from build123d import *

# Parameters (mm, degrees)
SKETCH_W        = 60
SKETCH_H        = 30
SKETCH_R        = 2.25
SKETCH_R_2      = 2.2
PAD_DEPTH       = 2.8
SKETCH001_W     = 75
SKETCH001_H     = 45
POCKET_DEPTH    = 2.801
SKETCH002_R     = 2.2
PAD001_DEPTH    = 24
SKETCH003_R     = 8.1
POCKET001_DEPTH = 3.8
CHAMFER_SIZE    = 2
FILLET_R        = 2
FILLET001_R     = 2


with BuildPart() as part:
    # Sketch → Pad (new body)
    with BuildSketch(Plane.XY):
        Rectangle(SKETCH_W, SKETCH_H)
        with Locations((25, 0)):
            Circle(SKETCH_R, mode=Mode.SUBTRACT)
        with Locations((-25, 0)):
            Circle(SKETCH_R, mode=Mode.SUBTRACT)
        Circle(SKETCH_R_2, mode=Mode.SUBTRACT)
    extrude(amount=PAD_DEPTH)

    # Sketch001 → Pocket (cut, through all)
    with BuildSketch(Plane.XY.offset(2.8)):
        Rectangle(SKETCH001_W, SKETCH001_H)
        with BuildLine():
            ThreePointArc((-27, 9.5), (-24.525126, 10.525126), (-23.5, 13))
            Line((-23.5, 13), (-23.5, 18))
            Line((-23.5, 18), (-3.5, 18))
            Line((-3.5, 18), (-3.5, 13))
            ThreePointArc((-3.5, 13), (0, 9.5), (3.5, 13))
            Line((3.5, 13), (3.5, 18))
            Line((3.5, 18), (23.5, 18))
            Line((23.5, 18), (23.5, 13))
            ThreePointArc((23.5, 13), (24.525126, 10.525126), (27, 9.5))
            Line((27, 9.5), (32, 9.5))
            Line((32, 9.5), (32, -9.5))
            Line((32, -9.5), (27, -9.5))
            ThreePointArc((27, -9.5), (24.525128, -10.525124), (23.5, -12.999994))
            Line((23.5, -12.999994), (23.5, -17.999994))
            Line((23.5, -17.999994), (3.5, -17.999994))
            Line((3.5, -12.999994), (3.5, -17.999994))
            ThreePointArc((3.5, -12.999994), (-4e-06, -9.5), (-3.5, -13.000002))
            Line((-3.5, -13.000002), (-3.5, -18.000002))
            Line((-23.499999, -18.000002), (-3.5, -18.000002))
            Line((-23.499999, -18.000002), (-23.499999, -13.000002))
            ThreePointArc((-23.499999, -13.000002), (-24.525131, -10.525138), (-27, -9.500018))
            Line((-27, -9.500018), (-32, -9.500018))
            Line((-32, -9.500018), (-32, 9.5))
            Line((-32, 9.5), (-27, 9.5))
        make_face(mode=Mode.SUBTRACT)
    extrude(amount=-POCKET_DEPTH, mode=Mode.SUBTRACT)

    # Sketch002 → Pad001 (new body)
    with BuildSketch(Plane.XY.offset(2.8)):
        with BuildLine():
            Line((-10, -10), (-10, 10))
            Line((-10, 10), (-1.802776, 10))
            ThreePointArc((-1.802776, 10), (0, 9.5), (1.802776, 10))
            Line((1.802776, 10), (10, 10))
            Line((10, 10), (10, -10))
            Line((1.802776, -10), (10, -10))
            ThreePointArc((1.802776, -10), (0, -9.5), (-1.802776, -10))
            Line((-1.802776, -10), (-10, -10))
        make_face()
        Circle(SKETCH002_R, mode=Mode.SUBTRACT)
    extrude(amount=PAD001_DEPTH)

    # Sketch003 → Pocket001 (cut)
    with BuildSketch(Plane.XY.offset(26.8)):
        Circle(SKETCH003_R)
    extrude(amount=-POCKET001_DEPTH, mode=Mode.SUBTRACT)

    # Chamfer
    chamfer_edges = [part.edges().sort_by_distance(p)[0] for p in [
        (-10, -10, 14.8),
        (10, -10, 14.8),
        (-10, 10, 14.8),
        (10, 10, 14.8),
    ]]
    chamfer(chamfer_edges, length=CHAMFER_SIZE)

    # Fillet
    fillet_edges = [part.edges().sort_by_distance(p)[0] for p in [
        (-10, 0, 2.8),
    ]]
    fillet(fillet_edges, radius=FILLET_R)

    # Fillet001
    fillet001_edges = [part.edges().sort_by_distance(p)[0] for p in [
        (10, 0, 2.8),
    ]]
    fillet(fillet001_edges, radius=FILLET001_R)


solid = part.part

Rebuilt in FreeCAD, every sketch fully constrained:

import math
import FreeCAD as App
import Part
import Sketcher
Q = App.Units.Quantity


def edges_at(feature, points):
    """Names of the edges that pass closest to the given points."""
    edges = feature.Shape.Edges
    near = lambda p: min(range(len(edges)), key=lambda i: edges[i].distToShape(Part.Vertex(*p))[0])
    return sorted({f"Edge{near(p) + 1}" for p in points})


def add_polygon(sketch, points):
    """Adds a closed chain of lines whose ends are joined by coincident constraints."""
    first, n = sketch.GeometryCount, len(points)
    for a, b in zip(points, points[1:] + points[:1]):
        sketch.addGeometry(Part.LineSegment(App.Vector(*a, 0), App.Vector(*b, 0)), False)
    for i in range(n):
        sketch.addConstraint(Sketcher.Constraint("Coincident", first + i, 2, first + (i + 1) % n, 1))

doc = App.newDocument("Part")
body = doc.addObject("PartDesign::Body", "Body")

# Sketch on XY plane
sketch1 = body.newObject("Sketcher::SketchObject", "Sketch")
sketch1.AttachmentSupport = (doc.getObject("XY_Plane"), [""])
sketch1.MapMode = "FlatFace"
add_polygon(sketch1, [(-30, 15), (-30, -15), (30, -15), (30, 15)])  # lines 0-3
sketch1.addGeometry(Part.Circle(App.Vector(-25, 0, 0), App.Vector(0, 0, 1), 2.2), False)  # 4
sketch1.addGeometry(Part.Circle(App.Vector(0, 0, 0), App.Vector(0, 0, 1), 2.2), False)  # 5
sketch1.addGeometry(Part.Circle(App.Vector(25, 0, 0), App.Vector(0, 0, 1), 2.2), False)  # 6
sketch1.addConstraint(Sketcher.Constraint("Vertical", 0))
sketch1.addConstraint(Sketcher.Constraint("Horizontal", 1))
sketch1.addConstraint(Sketcher.Constraint("Vertical", 2))
sketch1.addConstraint(Sketcher.Constraint("Horizontal", 3))
sketch1.addConstraint(Sketcher.Constraint("Coincident", 5, 3, -1, 1))
sketch1.addConstraint(Sketcher.Constraint("Equal", 4, 6))
sketch1.addConstraint(Sketcher.Constraint("Symmetric", 4, 3, 6, 3, -1, 1))
sketch1.addConstraint(Sketcher.Constraint("Symmetric", 0, 2, 2, 2, -1, 1))
sketch1.addConstraint(Sketcher.Constraint("PointOnObject", 4, 3, -1))
sketch1.addConstraint(Sketcher.Constraint("Diameter", 4, Q("4.5 mm")))
sketch1.addConstraint(Sketcher.Constraint("Diameter", 5, Q("4.4 mm")))
sketch1.addConstraint(Sketcher.Constraint("DistanceX", 1, 1, 1, 2, Q("60 mm")))
sketch1.addConstraint(Sketcher.Constraint("DistanceY", 0, 2, 0, 1, Q("30 mm")))
sketch1.addConstraint(Sketcher.Constraint("DistanceX", 4, 3, -1, 1, Q("25 mm")))
pad1 = body.newObject("PartDesign::Pad", "Pad")
pad1.Profile = sketch1
pad1.Length = 2.8

# Sketch on XY plane
sketch2 = body.newObject("Sketcher::SketchObject", "Sketch001")
sketch2.AttachmentSupport = (doc.getObject("XY_Plane"), [""])
sketch2.MapMode = "FlatFace"
sketch2.AttachmentOffset = App.Placement(App.Vector(0, 0, 2.8), App.Rotation())
add_polygon(sketch2, [(-37.5, 22.5), (-37.5, -22.5), (37.5, -22.5), (37.5, 22.5)])  # lines 0-3
sketch2.addGeometry(Part.LineSegment(App.Vector(-32, 9.5, 0), App.Vector(-27, 9.5, 0)), False)  # 4
sketch2.addGeometry(Part.ArcOfCircle(Part.Circle(App.Vector(-27, 13, 0), App.Vector(0, 0, 1), 3.5), math.radians(-90), math.radians(0)), False)  # 5
sketch2.addGeometry(Part.LineSegment(App.Vector(-23.5, 13, 0), App.Vector(-23.5, 18, 0)), False)  # 6
sketch2.addGeometry(Part.LineSegment(App.Vector(-23.5, 18, 0), App.Vector(-3.5, 18, 0)), False)  # 7
sketch2.addGeometry(Part.LineSegment(App.Vector(-3.5, 18, 0), App.Vector(-3.5, 13, 0)), False)  # 8
sketch2.addGeometry(Part.ArcOfCircle(Part.Circle(App.Vector(0, 13, 0), App.Vector(0, 0, 1), 3.5), math.radians(180), math.radians(360)), False)  # 9
sketch2.addGeometry(Part.LineSegment(App.Vector(3.5, 13, 0), App.Vector(3.5, 18, 0)), False)  # 10
sketch2.addGeometry(Part.LineSegment(App.Vector(3.5, 18, 0), App.Vector(23.5, 18, 0)), False)  # 11
sketch2.addGeometry(Part.LineSegment(App.Vector(23.5, 18, 0), App.Vector(23.5, 13, 0)), False)  # 12
sketch2.addGeometry(Part.ArcOfCircle(Part.Circle(App.Vector(27, 13, 0), App.Vector(0, 0, 1), 3.5), math.radians(180), math.radians(270)), False)  # 13
sketch2.addGeometry(Part.LineSegment(App.Vector(27, 9.5, 0), App.Vector(32, 9.5, 0)), False)  # 14
sketch2.addGeometry(Part.LineSegment(App.Vector(32, 9.5, 0), App.Vector(32, -9.5, 0)), False)  # 15
sketch2.addGeometry(Part.LineSegment(App.Vector(32, -9.5, 0), App.Vector(27, -9.5, 0)), False)  # 16
sketch2.addGeometry(Part.ArcOfCircle(Part.Circle(App.Vector(27, -13, 0), App.Vector(0, 0, 1), 3.5), math.radians(90), math.radians(180)), False)  # 17
sketch2.addGeometry(Part.LineSegment(App.Vector(23.5, -13, 0), App.Vector(23.5, -18, 0)), False)  # 18
sketch2.addGeometry(Part.LineSegment(App.Vector(23.5, -18, 0), App.Vector(3.5, -18, 0)), False)  # 19
sketch2.addGeometry(Part.LineSegment(App.Vector(3.5, -18, 0), App.Vector(3.5, -13, 0)), False)  # 20
sketch2.addGeometry(Part.ArcOfCircle(Part.Circle(App.Vector(0, -13, 0), App.Vector(0, 0, 1), 3.5), math.radians(0), math.radians(180)), False)  # 21
sketch2.addGeometry(Part.LineSegment(App.Vector(-3.5, -13, 0), App.Vector(-3.5, -18, 0)), False)  # 22
sketch2.addGeometry(Part.LineSegment(App.Vector(-3.5, -18, 0), App.Vector(-23.5, -18, 0)), False)  # 23
sketch2.addGeometry(Part.LineSegment(App.Vector(-23.5, -18, 0), App.Vector(-23.5, -13, 0)), False)  # 24
sketch2.addGeometry(Part.ArcOfCircle(Part.Circle(App.Vector(-27, -13, 0), App.Vector(0, 0, 1), 3.5), math.radians(0), math.radians(90)), False)  # 25
sketch2.addGeometry(Part.LineSegment(App.Vector(-27, -9.5, 0), App.Vector(-32, -9.5, 0)), False)  # 26
sketch2.addGeometry(Part.LineSegment(App.Vector(-32, -9.5, 0), App.Vector(-32, 9.5, 0)), False)  # 27
sketch2.addConstraint(Sketcher.Constraint("Tangent", 4, 2, 5, 1))
sketch2.addConstraint(Sketcher.Constraint("Tangent", 5, 2, 6, 1))
sketch2.addConstraint(Sketcher.Constraint("Coincident", 6, 2, 7, 1))
sketch2.addConstraint(Sketcher.Constraint("Coincident", 7, 2, 8, 1))
sketch2.addConstraint(Sketcher.Constraint("Tangent", 8, 2, 9, 1))
sketch2.addConstraint(Sketcher.Constraint("Tangent", 9, 2, 10, 1))
sketch2.addConstraint(Sketcher.Constraint("Coincident", 10, 2, 11, 1))
sketch2.addConstraint(Sketcher.Constraint("Coincident", 11, 2, 12, 1))
sketch2.addConstraint(Sketcher.Constraint("Tangent", 12, 2, 13, 1))
sketch2.addConstraint(Sketcher.Constraint("Tangent", 13, 2, 14, 1))
sketch2.addConstraint(Sketcher.Constraint("Coincident", 14, 2, 15, 1))
sketch2.addConstraint(Sketcher.Constraint("Coincident", 15, 2, 16, 1))
sketch2.addConstraint(Sketcher.Constraint("Tangent", 16, 2, 17, 1))
sketch2.addConstraint(Sketcher.Constraint("Tangent", 17, 2, 18, 1))
sketch2.addConstraint(Sketcher.Constraint("Coincident", 18, 2, 19, 1))
sketch2.addConstraint(Sketcher.Constraint("Coincident", 19, 2, 20, 1))
sketch2.addConstraint(Sketcher.Constraint("Tangent", 20, 2, 21, 1))
sketch2.addConstraint(Sketcher.Constraint("Tangent", 21, 2, 22, 1))
sketch2.addConstraint(Sketcher.Constraint("Coincident", 22, 2, 23, 1))
sketch2.addConstraint(Sketcher.Constraint("Coincident", 23, 2, 24, 1))
sketch2.addConstraint(Sketcher.Constraint("Coincident", 24, 2, 25, 1))
sketch2.addConstraint(Sketcher.Constraint("Tangent", 25, 2, 26, 1))
sketch2.addConstraint(Sketcher.Constraint("Coincident", 26, 2, 27, 1))
sketch2.addConstraint(Sketcher.Constraint("Coincident", 27, 2, 4, 1))
sketch2.addConstraint(Sketcher.Constraint("Vertical", 0))
sketch2.addConstraint(Sketcher.Constraint("Horizontal", 1))
sketch2.addConstraint(Sketcher.Constraint("Vertical", 2))
sketch2.addConstraint(Sketcher.Constraint("Horizontal", 3))
sketch2.addConstraint(Sketcher.Constraint("Horizontal", 4))
sketch2.addConstraint(Sketcher.Constraint("Vertical", 6))
sketch2.addConstraint(Sketcher.Constraint("Horizontal", 7))
sketch2.addConstraint(Sketcher.Constraint("Vertical", 8))
sketch2.addConstraint(Sketcher.Constraint("Vertical", 10))
sketch2.addConstraint(Sketcher.Constraint("Horizontal", 11))
sketch2.addConstraint(Sketcher.Constraint("Vertical", 12))
sketch2.addConstraint(Sketcher.Constraint("Horizontal", 14))
sketch2.addConstraint(Sketcher.Constraint("Vertical", 15))
sketch2.addConstraint(Sketcher.Constraint("Horizontal", 16))
sketch2.addConstraint(Sketcher.Constraint("Vertical", 18))
sketch2.addConstraint(Sketcher.Constraint("Horizontal", 19))
sketch2.addConstraint(Sketcher.Constraint("Vertical", 20))
sketch2.addConstraint(Sketcher.Constraint("Vertical", 22))
sketch2.addConstraint(Sketcher.Constraint("Horizontal", 23))
sketch2.addConstraint(Sketcher.Constraint("Vertical", 24))
sketch2.addConstraint(Sketcher.Constraint("Horizontal", 26))
sketch2.addConstraint(Sketcher.Constraint("Vertical", 27))
sketch2.addConstraint(Sketcher.Constraint("Equal", 5, 9))
sketch2.addConstraint(Sketcher.Constraint("Equal", 9, 13))
sketch2.addConstraint(Sketcher.Constraint("Equal", 13, 17))
sketch2.addConstraint(Sketcher.Constraint("Equal", 17, 21))
sketch2.addConstraint(Sketcher.Constraint("Equal", 21, 25))
sketch2.addConstraint(Sketcher.Constraint("Symmetric", 5, 3, 17, 3, -1, 1))
sketch2.addConstraint(Sketcher.Constraint("Symmetric", 9, 3, 21, 3, -1, 1))
sketch2.addConstraint(Sketcher.Constraint("Symmetric", 0, 2, 2, 2, -1, 1))
sketch2.addConstraint(Sketcher.Constraint("Symmetric", 11, 2, 23, 2, -1, 1))
sketch2.addConstraint(Sketcher.Constraint("Symmetric", 5, 3, 13, 3, -2))
sketch2.addConstraint(Sketcher.Constraint("Symmetric", 7, 2, 10, 2, -2))
sketch2.addConstraint(Sketcher.Constraint("Horizontal", 5, 3, 9, 3))
sketch2.addConstraint(Sketcher.Constraint("Horizontal", 21, 2, 24, 2))
sketch2.addConstraint(Sketcher.Constraint("Equal", 4, 14))
sketch2.addConstraint(Sketcher.Constraint("Equal", 26, 6))
sketch2.addConstraint(Sketcher.Constraint("Equal", 12, 18))
sketch2.addConstraint(Sketcher.Constraint("Radius", 5, Q("3.499999 mm")))
sketch2.addConstraint(Sketcher.Constraint("DistanceX", 1, 1, 1, 2, Q("75 mm")))
sketch2.addConstraint(Sketcher.Constraint("DistanceX", 4, 1, 4, 2, Q("5 mm")))
sketch2.addConstraint(Sketcher.Constraint("DistanceX", 7, 1, 7, 2, Q("20 mm")))
sketch2.addConstraint(Sketcher.Constraint("DistanceY", 0, 2, 0, 1, Q("45 mm")))
sketch2.addConstraint(Sketcher.Constraint("DistanceY", 15, 2, 15, 1, Q("19 mm")))
sketch2.addConstraint(Sketcher.Constraint("DistanceY", 27, 1, 27, 2, Q("19.000018 mm")))
pocket1 = body.newObject("PartDesign::Pocket", "Pocket")
pocket1.Profile = sketch2
pocket1.Type = "ThroughAll"

# Sketch on XY plane
sketch3 = body.newObject("Sketcher::SketchObject", "Sketch002")
sketch3.AttachmentSupport = (doc.getObject("XY_Plane"), [""])
sketch3.MapMode = "FlatFace"
sketch3.AttachmentOffset = App.Placement(App.Vector(0, 0, 2.8), App.Rotation())
sketch3.addGeometry(Part.LineSegment(App.Vector(-10, 10, 0), App.Vector(-10, -10, 0)), False)
sketch3.addGeometry(Part.LineSegment(App.Vector(-10, -10, 0), App.Vector(-1.8, -10, 0)), False)
sketch3.addGeometry(Part.ArcOfCircle(Part.Circle(App.Vector(0, -13, 0), App.Vector(0, 0, 1), 3.5), math.radians(59), math.radians(121)), False)
sketch3.addGeometry(Part.LineSegment(App.Vector(1.8, -10, 0), App.Vector(10, -10, 0)), False)
sketch3.addGeometry(Part.LineSegment(App.Vector(10, -10, 0), App.Vector(10, 10, 0)), False)
sketch3.addGeometry(Part.LineSegment(App.Vector(10, 10, 0), App.Vector(1.8, 10, 0)), False)
sketch3.addGeometry(Part.ArcOfCircle(Part.Circle(App.Vector(0, 13, 0), App.Vector(0, 0, 1), 3.5), math.radians(-121), math.radians(-59)), False)
sketch3.addGeometry(Part.LineSegment(App.Vector(-1.8, 10, 0), App.Vector(-10, 10, 0)), False)
sketch3.addGeometry(Part.Circle(App.Vector(0, 0, 0), App.Vector(0, 0, 1), 2.2), False)
sketch3.addConstraint(Sketcher.Constraint("Coincident", 0, 2, 1, 1))
sketch3.addConstraint(Sketcher.Constraint("Coincident", 1, 2, 2, 2))
sketch3.addConstraint(Sketcher.Constraint("Coincident", 2, 1, 3, 1))
sketch3.addConstraint(Sketcher.Constraint("Coincident", 3, 2, 4, 1))
sketch3.addConstraint(Sketcher.Constraint("Coincident", 4, 2, 5, 1))
sketch3.addConstraint(Sketcher.Constraint("Coincident", 5, 2, 6, 2))
sketch3.addConstraint(Sketcher.Constraint("Coincident", 6, 1, 7, 1))
sketch3.addConstraint(Sketcher.Constraint("Coincident", 7, 2, 0, 1))
sketch3.addConstraint(Sketcher.Constraint("Vertical", 0))
sketch3.addConstraint(Sketcher.Constraint("Horizontal", 1))
sketch3.addConstraint(Sketcher.Constraint("Horizontal", 3))
sketch3.addConstraint(Sketcher.Constraint("Vertical", 4))
sketch3.addConstraint(Sketcher.Constraint("Horizontal", 5))
sketch3.addConstraint(Sketcher.Constraint("Horizontal", 7))
sketch3.addConstraint(Sketcher.Constraint("Coincident", 8, 3, -1, 1))
sketch3.addConstraint(Sketcher.Constraint("Equal", 2, 6))
sketch3.addConstraint(Sketcher.Constraint("Symmetric", 2, 3, 6, 3, -1, 1))
sketch3.addConstraint(Sketcher.Constraint("Symmetric", 0, 2, 4, 2, -1, 1))
sketch3.addConstraint(Sketcher.Constraint("Symmetric", 1, 2, 2, 1, -2))
sketch3.addConstraint(Sketcher.Constraint("Horizontal", 5, 2, 6, 1))
sketch3.addConstraint(Sketcher.Constraint("Diameter", 8, Q("4.4 mm")))
sketch3.addConstraint(Sketcher.Constraint("Radius", 2, Q("3.500001 mm")))
sketch3.addConstraint(Sketcher.Constraint("DistanceY", 0, 2, 0, 1, Q("20 mm")))
sketch3.addConstraint(Sketcher.Constraint("DistanceY", 2, 3, -1, 1, Q("13.000001 mm")))
sketch3.addConstraint(Sketcher.Constraint("DistanceX", 0, 2, -1, 1, Q("10 mm")))
pad2 = body.newObject("PartDesign::Pad", "Pad001")
pad2.Profile = sketch3
pad2.Length = 24

# Sketch on XY plane
sketch4 = body.newObject("Sketcher::SketchObject", "Sketch003")
sketch4.AttachmentSupport = (doc.getObject("XY_Plane"), [""])
sketch4.MapMode = "FlatFace"
sketch4.AttachmentOffset = App.Placement(App.Vector(0, 0, 26.8), App.Rotation())
sketch4.addGeometry(Part.Circle(App.Vector(0, 0, 0), App.Vector(0, 0, 1), 8), False)
sketch4.addConstraint(Sketcher.Constraint("Coincident", 0, 3, -1, 1))
sketch4.addConstraint(Sketcher.Constraint("Diameter", 0, Q("16.2 mm")))
pocket2 = body.newObject("PartDesign::Pocket", "Pocket001")
pocket2.Profile = sketch4
pocket2.Length = 3.8
doc.recompute()

chamfer = body.newObject("PartDesign::Chamfer", "Chamfer")
chamfer.Base = (pocket2, edges_at(pocket2, [
    (-10, -10, 14.8),
    (10, -10, 14.8),
    (-10, 10, 14.8),
    (10, 10, 14.8),
]))
chamfer.Size = 2
doc.recompute()

fillet = body.newObject("PartDesign::Fillet", "Fillet")
fillet.Base = (chamfer, edges_at(chamfer, [(-10, 0, 2.8)]))
fillet.Radius = 2
doc.recompute()

fillet2 = body.newObject("PartDesign::Fillet", "Fillet001")
fillet2.Base = (fillet, edges_at(fillet, [(10, 0, 2.8)]))
fillet2.Radius = 2

doc.recompute()
